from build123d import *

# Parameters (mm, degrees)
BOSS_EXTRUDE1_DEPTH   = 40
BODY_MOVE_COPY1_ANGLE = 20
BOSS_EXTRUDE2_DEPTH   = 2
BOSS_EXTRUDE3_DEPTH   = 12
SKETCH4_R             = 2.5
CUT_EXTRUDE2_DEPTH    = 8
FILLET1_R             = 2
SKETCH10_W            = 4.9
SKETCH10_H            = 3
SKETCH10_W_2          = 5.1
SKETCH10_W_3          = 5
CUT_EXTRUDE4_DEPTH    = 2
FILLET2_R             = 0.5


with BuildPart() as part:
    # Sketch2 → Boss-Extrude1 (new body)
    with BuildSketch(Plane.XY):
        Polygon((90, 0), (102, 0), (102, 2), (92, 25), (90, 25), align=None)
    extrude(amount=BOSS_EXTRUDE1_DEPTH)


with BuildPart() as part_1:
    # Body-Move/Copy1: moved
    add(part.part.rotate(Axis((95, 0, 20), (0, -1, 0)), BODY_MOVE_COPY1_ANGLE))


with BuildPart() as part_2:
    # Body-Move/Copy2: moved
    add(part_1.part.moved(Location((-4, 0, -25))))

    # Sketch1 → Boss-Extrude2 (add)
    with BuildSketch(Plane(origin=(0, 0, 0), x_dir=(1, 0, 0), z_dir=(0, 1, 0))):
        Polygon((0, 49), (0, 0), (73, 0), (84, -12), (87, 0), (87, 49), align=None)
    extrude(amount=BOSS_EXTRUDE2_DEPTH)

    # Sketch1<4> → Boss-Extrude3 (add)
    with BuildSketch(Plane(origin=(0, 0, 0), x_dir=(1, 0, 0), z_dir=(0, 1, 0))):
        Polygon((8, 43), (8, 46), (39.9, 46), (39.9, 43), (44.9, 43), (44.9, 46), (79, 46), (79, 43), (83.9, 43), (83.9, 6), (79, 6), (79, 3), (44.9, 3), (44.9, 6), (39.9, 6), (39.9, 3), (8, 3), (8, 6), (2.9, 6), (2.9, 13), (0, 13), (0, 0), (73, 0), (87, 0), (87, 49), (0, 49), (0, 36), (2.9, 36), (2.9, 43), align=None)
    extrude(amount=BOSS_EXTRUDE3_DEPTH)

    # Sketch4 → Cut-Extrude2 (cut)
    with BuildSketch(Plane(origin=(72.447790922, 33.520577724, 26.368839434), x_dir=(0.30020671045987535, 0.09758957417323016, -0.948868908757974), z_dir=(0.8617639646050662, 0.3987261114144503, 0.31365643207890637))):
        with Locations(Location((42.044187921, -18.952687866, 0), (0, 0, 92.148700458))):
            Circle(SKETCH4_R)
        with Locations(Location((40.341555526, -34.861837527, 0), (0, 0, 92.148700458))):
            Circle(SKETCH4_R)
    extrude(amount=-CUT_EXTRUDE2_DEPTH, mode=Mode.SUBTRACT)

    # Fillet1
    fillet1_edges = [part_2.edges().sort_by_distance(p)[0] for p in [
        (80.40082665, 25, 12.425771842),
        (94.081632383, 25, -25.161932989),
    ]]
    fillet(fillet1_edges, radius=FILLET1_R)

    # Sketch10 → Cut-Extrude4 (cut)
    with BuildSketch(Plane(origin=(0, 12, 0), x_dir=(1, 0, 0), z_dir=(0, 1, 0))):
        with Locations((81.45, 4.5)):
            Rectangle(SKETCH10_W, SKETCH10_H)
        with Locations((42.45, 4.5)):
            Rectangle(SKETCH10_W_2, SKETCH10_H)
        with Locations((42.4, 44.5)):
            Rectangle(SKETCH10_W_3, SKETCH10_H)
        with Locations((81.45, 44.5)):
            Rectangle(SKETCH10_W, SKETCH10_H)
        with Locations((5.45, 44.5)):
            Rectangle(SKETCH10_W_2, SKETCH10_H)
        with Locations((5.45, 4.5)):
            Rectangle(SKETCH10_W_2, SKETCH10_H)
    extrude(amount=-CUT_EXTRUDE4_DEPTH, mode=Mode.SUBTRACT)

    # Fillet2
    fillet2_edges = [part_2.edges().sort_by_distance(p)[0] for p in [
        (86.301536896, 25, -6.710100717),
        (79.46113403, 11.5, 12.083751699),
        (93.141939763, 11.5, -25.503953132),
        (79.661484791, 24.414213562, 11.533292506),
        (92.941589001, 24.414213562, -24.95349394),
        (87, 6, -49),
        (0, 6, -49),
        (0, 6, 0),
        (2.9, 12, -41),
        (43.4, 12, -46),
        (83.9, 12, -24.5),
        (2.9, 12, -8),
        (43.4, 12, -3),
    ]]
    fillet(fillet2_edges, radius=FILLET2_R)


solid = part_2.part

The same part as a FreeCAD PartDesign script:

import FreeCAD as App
import Part
import Sketcher


def edges_at(feature, points):
    """Names of the edges that pass closest to the given points."""
    edges = feature.Shape.Edges
    near = lambda p: min(range(len(edges)), key=lambda i: edges[i].distToShape(Part.Vertex(*p))[0])
    return sorted({f"Edge{near(p) + 1}" for p in points})


def add_polygon(sketch, points):
    """Adds a closed chain of lines whose ends are joined by coincident constraints."""
    first, n = sketch.GeometryCount, len(points)
    for a, b in zip(points, points[1:] + points[:1]):
        sketch.addGeometry(Part.LineSegment(App.Vector(*a, 0), App.Vector(*b, 0)), False)
    for i in range(n):
        sketch.addConstraint(Sketcher.Constraint("Coincident", first + i, 2, first + (i + 1) % n, 1))

doc = App.newDocument("Part")
body = doc.addObject("PartDesign::Body", "Body")

# Sketch on XY plane
sketch1 = body.newObject("Sketcher::SketchObject", "Sketch")
sketch1.AttachmentSupport = (doc.getObject("XY_Plane"), [""])
sketch1.MapMode = "FlatFace"
add_polygon(sketch1, [(90, 0), (102, 0), (102, 2), (92, 25), (90, 25)])  # lines 0-4
sketch1.addConstraint(Sketcher.Constraint("Horizontal", 0))
sketch1.addConstraint(Sketcher.Constraint("Vertical", 1))
sketch1.addConstraint(Sketcher.Constraint("Horizontal", 3))
sketch1.addConstraint(Sketcher.Constraint("Vertical", 4))
sketch1.addConstraint(Sketcher.Constraint("PointOnObject", 0, 2, -1))
sketch1.addConstraint(Sketcher.Constraint("Equal", 3, 1))
sketch1.addConstraint(Sketcher.Constraint("DistanceX", 0, 1, 0, 2, 12.0))
sketch1.addConstraint(Sketcher.Constraint("DistanceX", 3, 2, 3, 1, 2.0))
sketch1.addConstraint(Sketcher.Constraint("DistanceY", 4, 2, 4, 1, 25.0))
sketch1.addConstraint(Sketcher.Constraint("DistanceX", -1, 1, 0, 2, 102.0))
pad1 = body.newObject("PartDesign::Pad", "Pad")
pad1.Profile = sketch1
pad1.Length = 40
body2 = doc.addObject("PartDesign::Body", "Body001")
doc.recompute()

body.Placement = App.Placement(App.Vector(12.569604, 0, -31.285766), App.Rotation(App.Vector(0, -1, 0), 20))
boolean = body2.newObject("PartDesign::Boolean", "Boolean")
boolean.Type = "Fuse"
boolean.addObjects([body])
body3 = doc.addObject("PartDesign::Body", "Body002")
doc.recompute()

body2.Placement = App.Placement(App.Vector(-4, 0, -25), App.Rotation(App.Vector(0, 0, 1), 0))
boolean2 = body3.newObject("PartDesign::Boolean", "Boolean001")
boolean2.Type = "Fuse"
boolean2.addObjects([body2])

# Sketch on XZ plane
sketch2 = body3.newObject("Sketcher::SketchObject", "Sketch001")
sketch2.AttachmentSupport = (doc.getObject("XZ_Plane002"), [""])
sketch2.MapMode = "FlatFace"
add_polygon(sketch2, [(0, -49), (0, 0), (73, 0), (84, 12), (87, 0), (87, -49)])  # lines 0-5
sketch2.addConstraint(Sketcher.Constraint("Vertical", 0))
sketch2.addConstraint(Sketcher.Constraint("Horizontal", 1))
sketch2.addConstraint(Sketcher.Constraint("Vertical", 4))
sketch2.addConstraint(Sketcher.Constraint("Horizontal", 5))
sketch2.addConstraint(Sketcher.Constraint("Coincident", 0, 2, -1, 1))
sketch2.addConstraint(Sketcher.Constraint("PointOnObject", 3, 2, -1))
sketch2.addConstraint(Sketcher.Constraint("DistanceX", 1, 1, 1, 2, 73.0))
sketch2.addConstraint(Sketcher.Constraint("DistanceX", 5, 2, 5, 1, 87.0))
sketch2.addConstraint(Sketcher.Constraint("DistanceY", 0, 1, 0, 2, 49.0))
sketch2.addConstraint(Sketcher.Constraint("DistanceX", -1, 1, 2, 2, 84.0))
sketch2.addConstraint(Sketcher.Constraint("DistanceY", -1, 1, 2, 2, 12.0))
pad2 = body3.newObject("PartDesign::Pad", "Pad001")
pad2.Profile = sketch2
pad2.Length = 2
pad2.Reversed = True

# Sketch on XZ plane
sketch3 = body3.newObject("Sketcher::SketchObject", "Sketch002")
sketch3.AttachmentSupport = (doc.getObject("XZ_Plane002"), [""])
sketch3.MapMode = "FlatFace"
add_polygon(sketch3, [(8, -43), (8, -46), (39.9, -46), (39.9, -43), (44.9, -43), (44.9, -46), (79, -46), (79, -43), (83.9, -43), (83.9, -6), (79, -6), (79, -3), (44.9, -3), (44.9, -6), (39.9, -6), (39.9, -3), (8, -3), (8, -6), (2.9, -6), (2.9, -13), (0, -13), (0, 0), (87, 0), (87, -49), (0, -49), (0, -36), (2.9, -36), (2.9, -43)])  # lines 0-27
sketch3.addConstraint(Sketcher.Constraint("Vertical", 0))
sketch3.addConstraint(Sketcher.Constraint("Horizontal", 1))
sketch3.addConstraint(Sketcher.Constraint("Vertical", 2))
sketch3.addConstraint(Sketcher.Constraint("Horizontal", 3))
sketch3.addConstraint(Sketcher.Constraint("Vertical", 4))
sketch3.addConstraint(Sketcher.Constraint("Horizontal", 5))
sketch3.addConstraint(Sketcher.Constraint("Vertical", 6))
sketch3.addConstraint(Sketcher.Constraint("Horizontal", 7))
sketch3.addConstraint(Sketcher.Constraint("Vertical", 8))
sketch3.addConstraint(Sketcher.Constraint("Horizontal", 9))
sketch3.addConstraint(Sketcher.Constraint("Vertical", 10))
sketch3.addConstraint(Sketcher.Constraint("Horizontal", 11))
sketch3.addConstraint(Sketcher.Constraint("Vertical", 12))
sketch3.addConstraint(Sketcher.Constraint("Horizontal", 13))
sketch3.addConstraint(Sketcher.Constraint("Vertical", 14))
sketch3.addConstraint(Sketcher.Constraint("Horizontal", 15))
sketch3.addConstraint(Sketcher.Constraint("Vertical", 16))
sketch3.addConstraint(Sketcher.Constraint("Horizontal", 17))
sketch3.addConstraint(Sketcher.Constraint("Vertical", 18))
sketch3.addConstraint(Sketcher.Constraint("Horizontal", 19))
sketch3.addConstraint(Sketcher.Constraint("Vertical", 20))
sketch3.addConstraint(Sketcher.Constraint("Horizontal", 21))
sketch3.addConstraint(Sketcher.Constraint("Vertical", 22))
sketch3.addConstraint(Sketcher.Constraint("Horizontal", 23))
sketch3.addConstraint(Sketcher.Constraint("Vertical", 24))
sketch3.addConstraint(Sketcher.Constraint("Horizontal", 25))
sketch3.addConstraint(Sketcher.Constraint("Vertical", 26))
sketch3.addConstraint(Sketcher.Constraint("Horizontal", 27))
sketch3.addConstraint(Sketcher.Constraint("Coincident", 20, 2, -1, 1))
sketch3.addConstraint(Sketcher.Constraint("PointOnObject", 23, 2, -2))
sketch3.addConstraint(Sketcher.Constraint("Horizontal", 1, 2, 4, 2))
sketch3.addConstraint(Sketcher.Constraint("Horizontal", 3, 2, 6, 2))
sketch3.addConstraint(Sketcher.Constraint("Horizontal", 9, 2, 12, 2))
sketch3.addConstraint(Sketcher.Constraint("Horizontal", 11, 2, 14, 2))
sketch3.addConstraint(Sketcher.Constraint("Horizontal", 13, 2, 16, 2))
sketch3.addConstraint(Sketcher.Constraint("Horizontal", 7, 2, 26, 2))
sketch3.addConstraint(Sketcher.Constraint("Vertical", 6, 2, 9, 2))
sketch3.addConstraint(Sketcher.Constraint("Vertical", 4, 2, 11, 2))
sketch3.addConstraint(Sketcher.Constraint("Vertical", 2, 2, 13, 2))
sketch3.addConstraint(Sketcher.Constraint("Vertical", 0, 2, 15, 2))
sketch3.addConstraint(Sketcher.Constraint("Vertical", 18, 2, 25, 2))
sketch3.addConstraint(Sketcher.Constraint("Equal", 6, 10))
sketch3.addConstraint(Sketcher.Constraint("Equal", 20, 24))
sketch3.addConstraint(Sketcher.Constraint("Equal", 18, 26))
sketch3.addConstraint(Sketcher.Constraint("DistanceX", 3, 1, 3, 2, 5.0))
sketch3.addConstraint(Sketcher.Constraint("DistanceX", 21, 1, 21, 2, 87.0))
sketch3.addConstraint(Sketcher.Constraint("DistanceY", 0, 2, 0, 1, 3.0))
sketch3.addConstraint(Sketcher.Constraint("DistanceY", 8, 1, 8, 2, 37.0))
sketch3.addConstraint(Sketcher.Constraint("DistanceY", 18, 2, 18, 1, 7.0))
sketch3.addConstraint(Sketcher.Constraint("DistanceY", 20, 1, 20, 2, 13.0))
sketch3.addConstraint(Sketcher.Constraint("DistanceX", 1, 1, 1, 2, 31.9))
sketch3.addConstraint(Sketcher.Constraint("DistanceX", 5, 1, 5, 2, 34.1))
sketch3.addConstraint(Sketcher.Constraint("DistanceX", 7, 1, 7, 2, 4.9))
sketch3.addConstraint(Sketcher.Constraint("DistanceX", 17, 2, 17, 1, 5.1))
sketch3.addConstraint(Sketcher.Constraint("DistanceX", 19, 2, 19, 1, 2.9))
pad3 = body3.newObject("PartDesign::Pad", "Pad002")
pad3.Profile = sketch3
pad3.Length = 12
pad3.Reversed = True

# Sketch on an angled plane
sketch4 = body3.newObject("Sketcher::SketchObject", "Sketch003")
sketch4.Placement = App.Placement(App.Vector(72.447791, 33.520578, 26.368839), App.Rotation(App.Vector(0.30020671, 0.097589574, -0.948868909), App.Vector(-0.408948408, 0.911862799, -0.035601076), App.Vector(0.861763965, 0.398726111, 0.313656432), "ZXY"))
sketch4.addGeometry(Part.Circle(App.Vector(42, -19, 0), App.Vector(0, 0, 1), 2.5), False)
sketch4.addGeometry(Part.Circle(App.Vector(40.3, -34.9, 0), App.Vector(0, 0, 1), 2.5), False)
sketch4.addConstraint(Sketcher.Constraint("Equal", 0, 1))
sketch4.addConstraint(Sketcher.Constraint("Diameter", 0, 5.0))
sketch4.addConstraint(Sketcher.Constraint("DistanceY", 1, 3, 0, 3, 15.90915))
sketch4.addConstraint(Sketcher.Constraint("DistanceX", -1, 1, 0, 3, 42.044188))
sketch4.addConstraint(Sketcher.Constraint("DistanceY", 0, 3, -1, 1, 18.952688))
sketch4.addConstraint(Sketcher.Constraint("DistanceX", -1, 1, 1, 3, 40.341556))
pocket1 = body3.newObject("PartDesign::Pocket", "Pocket")
pocket1.Profile = sketch4
pocket1.Length = 8
doc.recompute()

fillet = body3.newObject("PartDesign::Fillet", "Fillet")
fillet.Base = (pocket1, edges_at(pocket1, [(80.401, 25, 12.426), (94.082, 25, -25.162)]))
fillet.Radius = 2

# Sketch on XZ plane
sketch5 = body3.newObject("Sketcher::SketchObject", "Sketch004")
sketch5.AttachmentSupport = (doc.getObject("XZ_Plane002"), [""])
sketch5.MapMode = "FlatFace"
sketch5.AttachmentOffset = App.Placement(App.Vector(0, 0, -12), App.Rotation())
add_polygon(sketch5, [(79, -6), (79, -3), (83.9, -3), (83.9, -6)])  # lines 0-3
add_polygon(sketch5, [(39.9, -6), (39.9, -3), (45, -3), (45, -6)])  # lines 4-7
add_polygon(sketch5, [(39.9, -46), (39.9, -43), (44.9, -43), (44.9, -46)])  # lines 8-11
add_polygon(sketch5, [(79, -46), (79, -43), (83.9, -43), (83.9, -46)])  # lines 12-15
add_polygon(sketch5, [(2.9, -46), (2.9, -43), (8, -43), (8, -46)])  # lines 16-19
add_polygon(sketch5, [(2.9, -6), (2.9, -3), (8, -3), (8, -6)])  # lines 20-23
sketch5.addConstraint(Sketcher.Constraint("Vertical", 0))
sketch5.addConstraint(Sketcher.Constraint("Horizontal", 1))
sketch5.addConstraint(Sketcher.Constraint("Vertical", 2))
sketch5.addConstraint(Sketcher.Constraint("Horizontal", 3))
sketch5.addConstraint(Sketcher.Constraint("Vertical", 4))
sketch5.addConstraint(Sketcher.Constraint("Horizontal", 5))
sketch5.addConstraint(Sketcher.Constraint("Vertical", 6))
sketch5.addConstraint(Sketcher.Constraint("Horizontal", 7))
sketch5.addConstraint(Sketcher.Constraint("Vertical", 8))
sketch5.addConstraint(Sketcher.Constraint("Horizontal", 9))
sketch5.addConstraint(Sketcher.Constraint("Vertical", 10))
sketch5.addConstraint(Sketcher.Constraint("Horizontal", 11))
sketch5.addConstraint(Sketcher.Constraint("Vertical", 12))
sketch5.addConstraint(Sketcher.Constraint("Horizontal", 13))
sketch5.addConstraint(Sketcher.Constraint("Vertical", 14))
sketch5.addConstraint(Sketcher.Constraint("Horizontal", 15))
sketch5.addConstraint(Sketcher.Constraint("Vertical", 16))
sketch5.addConstraint(Sketcher.Constraint("Horizontal", 17))
sketch5.addConstraint(Sketcher.Constraint("Vertical", 18))
sketch5.addConstraint(Sketcher.Constraint("Horizontal", 19))
sketch5.addConstraint(Sketcher.Constraint("Vertical", 20))
sketch5.addConstraint(Sketcher.Constraint("Horizontal", 21))
sketch5.addConstraint(Sketcher.Constraint("Vertical", 22))
sketch5.addConstraint(Sketcher.Constraint("Horizontal", 23))
sketch5.addConstraint(Sketcher.Constraint("Horizontal", 1, 2, 4, 2))
sketch5.addConstraint(Sketcher.Constraint("Horizontal", 3, 2, 6, 2))
sketch5.addConstraint(Sketcher.Constraint("Horizontal", 9, 2, 12, 2))
sketch5.addConstraint(Sketcher.Constraint("Horizontal", 11, 2, 14, 2))
sketch5.addConstraint(Sketcher.Constraint("Horizontal", 13, 2, 16, 2))
sketch5.addConstraint(Sketcher.Constraint("Horizontal", 15, 2, 18, 2))
sketch5.addConstraint(Sketcher.Constraint("Horizontal", 5, 2, 20, 2))
sketch5.addConstraint(Sketcher.Constraint("Horizontal", 7, 2, 22, 2))
sketch5.addConstraint(Sketcher.Constraint("Vertical", 7, 2, 8, 2))
sketch5.addConstraint(Sketcher.Constraint("Vertical", 3, 2, 12, 2))
sketch5.addConstraint(Sketcher.Constraint("Vertical", 2, 2, 13, 2))
sketch5.addConstraint(Sketcher.Constraint("Vertical", 19, 2, 20, 2))
sketch5.addConstraint(Sketcher.Constraint("Vertical", 18, 2, 21, 2))
sketch5.addConstraint(Sketcher.Constraint("Equal", 7, 17))
sketch5.addConstraint(Sketcher.Constraint("Equal", 6, 8))
sketch5.addConstraint(Sketcher.Constraint("DistanceX", 9, 1, 9, 2, 5.0))
sketch5.addConstraint(Sketcher.Constraint("DistanceY", 0, 1, 0, 2, 3.0))
sketch5.addConstraint(Sketcher.Constraint("DistanceX", 1, 1, 1, 2, 4.9))
sketch5.addConstraint(Sketcher.Constraint("DistanceX", 5, 1, 5, 2, 5.1))
sketch5.addConstraint(Sketcher.Constraint("DistanceX", -1, 1, 0, 2, 79.0))
sketch5.addConstraint(Sketcher.Constraint("DistanceY", 0, 2, -1, 1, 3.0))
sketch5.addConstraint(Sketcher.Constraint("DistanceX", -1, 1, 5, 2, 45.0))
sketch5.addConstraint(Sketcher.Constraint("DistanceY", 8, 2, -1, 1, 43.0))
sketch5.addConstraint(Sketcher.Constraint("DistanceX", -1, 1, 17, 2, 8.0))
pocket2 = body3.newObject("PartDesign::Pocket", "Pocket001")
pocket2.Profile = sketch5
pocket2.Length = 2
pocket2.Reversed = True
doc.recompute()

fillet2 = body3.newObject("PartDesign::Fillet", "Fillet001")
fillet2.Base = (pocket2, edges_at(pocket2, [
    (86.302, 25, -6.71),
    (79.461, 11.5, 12.084),
    (93.142, 11.5, -25.504),
    (79.661, 24.414, 11.533),
    (92.942, 24.414, -24.953),
    (87, 6, -49),
    (0, 6, -49),
    (0, 6, 0),
    (2.9, 12, -41),
    (43.4, 12, -46),
    (83.9, 12, -24.5),
    (2.9, 12, -8),
    (43.4, 12, -3),
]))
fillet2.Radius = 0.5

doc.recompute()
